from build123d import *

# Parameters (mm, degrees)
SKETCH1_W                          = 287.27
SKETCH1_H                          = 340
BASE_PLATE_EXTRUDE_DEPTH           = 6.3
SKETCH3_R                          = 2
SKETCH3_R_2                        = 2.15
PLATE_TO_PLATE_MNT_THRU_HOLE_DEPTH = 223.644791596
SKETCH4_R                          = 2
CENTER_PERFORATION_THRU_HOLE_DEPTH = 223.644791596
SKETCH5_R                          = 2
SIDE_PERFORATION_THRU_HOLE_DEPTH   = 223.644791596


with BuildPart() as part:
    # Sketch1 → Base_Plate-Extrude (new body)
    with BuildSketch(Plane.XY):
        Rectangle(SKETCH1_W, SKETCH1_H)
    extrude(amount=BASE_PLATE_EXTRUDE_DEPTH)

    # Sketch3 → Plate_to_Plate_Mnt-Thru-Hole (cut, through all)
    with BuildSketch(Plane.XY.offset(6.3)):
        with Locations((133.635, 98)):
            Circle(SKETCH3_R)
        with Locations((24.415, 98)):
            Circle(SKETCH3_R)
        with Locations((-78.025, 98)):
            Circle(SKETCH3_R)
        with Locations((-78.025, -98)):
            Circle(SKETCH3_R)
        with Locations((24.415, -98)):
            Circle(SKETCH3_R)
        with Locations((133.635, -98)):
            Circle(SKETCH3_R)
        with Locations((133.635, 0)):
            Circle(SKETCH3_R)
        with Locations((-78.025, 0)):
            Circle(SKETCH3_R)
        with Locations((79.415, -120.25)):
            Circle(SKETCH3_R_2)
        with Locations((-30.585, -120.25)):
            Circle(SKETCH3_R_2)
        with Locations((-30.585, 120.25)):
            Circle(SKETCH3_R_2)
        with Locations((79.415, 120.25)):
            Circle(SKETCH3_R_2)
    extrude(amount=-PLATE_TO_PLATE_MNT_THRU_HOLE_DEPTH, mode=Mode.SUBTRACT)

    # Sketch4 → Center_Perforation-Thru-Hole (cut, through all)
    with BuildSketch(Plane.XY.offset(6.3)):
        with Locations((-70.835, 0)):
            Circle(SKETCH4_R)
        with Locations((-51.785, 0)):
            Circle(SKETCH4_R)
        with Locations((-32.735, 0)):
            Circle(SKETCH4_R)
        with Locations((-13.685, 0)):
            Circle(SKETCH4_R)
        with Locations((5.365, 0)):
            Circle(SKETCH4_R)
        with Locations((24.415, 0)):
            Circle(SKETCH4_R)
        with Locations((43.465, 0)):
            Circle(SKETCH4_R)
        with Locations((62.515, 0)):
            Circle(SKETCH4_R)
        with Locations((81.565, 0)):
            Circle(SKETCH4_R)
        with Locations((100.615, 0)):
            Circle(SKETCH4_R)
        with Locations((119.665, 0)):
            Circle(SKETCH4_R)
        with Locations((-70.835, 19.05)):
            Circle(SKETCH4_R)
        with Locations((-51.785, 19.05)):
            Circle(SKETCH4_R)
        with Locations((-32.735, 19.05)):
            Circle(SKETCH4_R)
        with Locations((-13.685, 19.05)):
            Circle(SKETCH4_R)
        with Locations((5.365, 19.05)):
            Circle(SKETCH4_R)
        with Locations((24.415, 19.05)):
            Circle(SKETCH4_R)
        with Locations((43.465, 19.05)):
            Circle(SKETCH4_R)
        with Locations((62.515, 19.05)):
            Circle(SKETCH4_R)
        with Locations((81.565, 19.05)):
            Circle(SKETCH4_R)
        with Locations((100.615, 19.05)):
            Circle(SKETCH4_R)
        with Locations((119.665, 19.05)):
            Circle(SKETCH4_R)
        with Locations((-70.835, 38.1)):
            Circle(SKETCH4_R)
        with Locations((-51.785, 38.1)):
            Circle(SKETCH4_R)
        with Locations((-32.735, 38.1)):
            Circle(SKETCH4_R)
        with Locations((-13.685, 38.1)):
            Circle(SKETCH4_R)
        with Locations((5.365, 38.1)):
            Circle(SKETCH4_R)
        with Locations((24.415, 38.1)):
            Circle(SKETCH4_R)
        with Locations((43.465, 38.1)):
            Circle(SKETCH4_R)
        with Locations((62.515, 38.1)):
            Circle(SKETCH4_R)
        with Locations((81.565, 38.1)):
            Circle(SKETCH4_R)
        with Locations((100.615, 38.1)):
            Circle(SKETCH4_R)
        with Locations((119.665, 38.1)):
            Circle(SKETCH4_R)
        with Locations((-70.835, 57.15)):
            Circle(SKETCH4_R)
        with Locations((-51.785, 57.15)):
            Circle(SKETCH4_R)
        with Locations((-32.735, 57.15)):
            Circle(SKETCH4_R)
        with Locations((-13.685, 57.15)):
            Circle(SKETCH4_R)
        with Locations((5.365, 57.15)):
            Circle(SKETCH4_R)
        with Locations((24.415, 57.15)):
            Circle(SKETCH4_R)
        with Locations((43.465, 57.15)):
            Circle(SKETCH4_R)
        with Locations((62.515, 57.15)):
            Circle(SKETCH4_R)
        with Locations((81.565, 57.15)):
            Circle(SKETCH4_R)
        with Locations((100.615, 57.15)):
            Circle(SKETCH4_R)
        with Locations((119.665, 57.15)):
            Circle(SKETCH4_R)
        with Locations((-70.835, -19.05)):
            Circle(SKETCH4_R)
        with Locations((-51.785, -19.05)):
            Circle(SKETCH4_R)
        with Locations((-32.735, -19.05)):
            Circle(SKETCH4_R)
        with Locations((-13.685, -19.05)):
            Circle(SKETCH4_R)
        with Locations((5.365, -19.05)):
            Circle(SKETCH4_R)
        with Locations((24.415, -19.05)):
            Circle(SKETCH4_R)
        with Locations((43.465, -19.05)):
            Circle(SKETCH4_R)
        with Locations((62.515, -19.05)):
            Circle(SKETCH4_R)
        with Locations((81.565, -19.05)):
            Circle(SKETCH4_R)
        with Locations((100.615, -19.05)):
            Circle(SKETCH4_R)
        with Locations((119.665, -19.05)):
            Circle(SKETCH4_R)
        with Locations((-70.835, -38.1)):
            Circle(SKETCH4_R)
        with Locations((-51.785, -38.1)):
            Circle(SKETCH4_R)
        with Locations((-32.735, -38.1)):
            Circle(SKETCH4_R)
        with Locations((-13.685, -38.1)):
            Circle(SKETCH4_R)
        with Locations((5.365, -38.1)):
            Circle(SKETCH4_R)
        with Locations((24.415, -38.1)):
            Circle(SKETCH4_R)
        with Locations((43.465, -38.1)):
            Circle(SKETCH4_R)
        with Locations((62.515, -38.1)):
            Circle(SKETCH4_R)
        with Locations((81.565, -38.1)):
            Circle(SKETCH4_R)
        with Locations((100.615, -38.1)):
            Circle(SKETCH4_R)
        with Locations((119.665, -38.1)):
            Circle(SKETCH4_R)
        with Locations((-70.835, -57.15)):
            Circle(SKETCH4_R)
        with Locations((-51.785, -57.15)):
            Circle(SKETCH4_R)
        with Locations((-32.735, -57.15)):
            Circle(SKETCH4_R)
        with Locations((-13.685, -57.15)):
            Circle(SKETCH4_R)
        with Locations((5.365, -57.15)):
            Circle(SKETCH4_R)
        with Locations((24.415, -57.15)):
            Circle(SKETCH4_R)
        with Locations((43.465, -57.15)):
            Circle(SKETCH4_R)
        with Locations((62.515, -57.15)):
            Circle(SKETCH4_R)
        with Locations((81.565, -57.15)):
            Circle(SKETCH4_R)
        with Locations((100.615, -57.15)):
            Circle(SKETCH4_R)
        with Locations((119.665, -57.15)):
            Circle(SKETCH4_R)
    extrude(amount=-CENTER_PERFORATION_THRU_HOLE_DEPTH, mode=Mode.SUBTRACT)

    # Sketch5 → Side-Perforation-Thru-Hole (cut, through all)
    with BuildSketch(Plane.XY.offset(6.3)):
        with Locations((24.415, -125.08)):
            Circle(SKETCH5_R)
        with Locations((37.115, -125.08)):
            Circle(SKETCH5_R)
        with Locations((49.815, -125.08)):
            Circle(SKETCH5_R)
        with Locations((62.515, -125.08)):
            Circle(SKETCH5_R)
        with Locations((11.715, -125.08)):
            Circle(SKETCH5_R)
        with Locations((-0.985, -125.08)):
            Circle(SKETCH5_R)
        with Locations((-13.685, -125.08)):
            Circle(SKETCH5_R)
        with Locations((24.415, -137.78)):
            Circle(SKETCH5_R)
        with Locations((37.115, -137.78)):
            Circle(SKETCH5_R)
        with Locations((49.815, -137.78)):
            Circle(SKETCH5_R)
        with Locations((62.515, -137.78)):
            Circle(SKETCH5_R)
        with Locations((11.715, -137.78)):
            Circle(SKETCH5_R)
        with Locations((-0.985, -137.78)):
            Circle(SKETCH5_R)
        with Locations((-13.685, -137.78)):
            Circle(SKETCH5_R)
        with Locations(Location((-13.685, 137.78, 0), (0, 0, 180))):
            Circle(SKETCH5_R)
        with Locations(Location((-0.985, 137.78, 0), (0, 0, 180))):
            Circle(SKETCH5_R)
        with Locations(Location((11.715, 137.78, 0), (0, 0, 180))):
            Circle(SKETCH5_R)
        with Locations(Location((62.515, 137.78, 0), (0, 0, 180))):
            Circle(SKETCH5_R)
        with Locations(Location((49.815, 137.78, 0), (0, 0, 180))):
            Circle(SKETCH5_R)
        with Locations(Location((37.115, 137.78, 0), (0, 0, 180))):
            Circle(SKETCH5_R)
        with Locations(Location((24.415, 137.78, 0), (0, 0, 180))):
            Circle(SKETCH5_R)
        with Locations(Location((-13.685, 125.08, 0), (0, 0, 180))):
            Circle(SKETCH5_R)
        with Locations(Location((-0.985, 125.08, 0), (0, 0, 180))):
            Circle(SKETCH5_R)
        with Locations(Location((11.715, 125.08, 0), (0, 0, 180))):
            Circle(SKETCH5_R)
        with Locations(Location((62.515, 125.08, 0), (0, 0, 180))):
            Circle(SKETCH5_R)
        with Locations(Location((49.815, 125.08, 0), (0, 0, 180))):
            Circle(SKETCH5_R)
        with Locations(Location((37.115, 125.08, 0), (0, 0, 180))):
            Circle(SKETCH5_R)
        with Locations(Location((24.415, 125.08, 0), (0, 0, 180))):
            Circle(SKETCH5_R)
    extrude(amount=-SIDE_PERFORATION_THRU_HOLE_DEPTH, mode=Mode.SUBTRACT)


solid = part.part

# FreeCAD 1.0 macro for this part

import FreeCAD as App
import Part
import Sketcher
Q = App.Units.Quantity


def add_polygon(sketch, points):
    """Adds a closed chain of lines whose ends are joined by coincident constraints."""
    first, n = sketch.GeometryCount, len(points)
    for a, b in zip(points, points[1:] + points[:1]):
        sketch.addGeometry(Part.LineSegment(App.Vector(*a, 0), App.Vector(*b, 0)), False)
    for i in range(n):
        sketch.addConstraint(Sketcher.Constraint("Coincident", first + i, 2, first + (i + 1) % n, 1))

doc = App.newDocument("Part")
body = doc.addObject("PartDesign::Body", "Body")

# Sketch on XY plane
sketch1 = body.newObject("Sketcher::SketchObject", "Sketch")
sketch1.AttachmentSupport = (doc.getObject("XY_Plane"), [""])
sketch1.MapMode = "FlatFace"
add_polygon(sketch1, [(-144, 170), (-144, -170), (144, -170), (144, 170)])  # lines 0-3
sketch1.addConstraint(Sketcher.Constraint("Vertical", 0))
sketch1.addConstraint(Sketcher.Constraint("Horizontal", 1))
sketch1.addConstraint(Sketcher.Constraint("Vertical", 2))
sketch1.addConstraint(Sketcher.Constraint("Horizontal", 3))
sketch1.addConstraint(Sketcher.Constraint("Symmetric", 0, 2, 2, 2, -1, 1))
sketch1.addConstraint(Sketcher.Constraint("DistanceY", 0, 2, 0, 1, Q("340 mm")))
sketch1.addConstraint(Sketcher.Constraint("DistanceX", 1, 1, 1, 2, Q("287.27 mm")))
pad1 = body.newObject("PartDesign::Pad", "Pad")
pad1.Profile = sketch1
pad1.Length = 6.3

# Sketch on XY plane
sketch2 = body.newObject("Sketcher::SketchObject", "Sketch001")
sketch2.AttachmentSupport = (doc.getObject("XY_Plane"), [""])
sketch2.MapMode = "FlatFace"
sketch2.AttachmentOffset = App.Placement(App.Vector(0, 0, 6.3), App.Rotation())
sketch2.addGeometry(Part.Circle(App.Vector(133.6, 98, 0), App.Vector(0, 0, 1), 2), False)
sketch2.addGeometry(Part.Circle(App.Vector(24.4, 98, 0), App.Vector(0, 0, 1), 2), False)
sketch2.addGeometry(Part.Circle(App.Vector(-78, 98, 0), App.Vector(0, 0, 1), 2), False)
sketch2.addGeometry(Part.Circle(App.Vector(-78, -98, 0), App.Vector(0, 0, 1), 2), False)
sketch2.addGeometry(Part.Circle(App.Vector(24.4, -98, 0), App.Vector(0, 0, 1), 2), False)
sketch2.addGeometry(Part.Circle(App.Vector(133.6, -98, 0), App.Vector(0, 0, 1), 2), False)
sketch2.addGeometry(Part.Circle(App.Vector(133.6, 0, 0), App.Vector(0, 0, 1), 2), False)
sketch2.addGeometry(Part.Circle(App.Vector(-78, 0, 0), App.Vector(0, 0, 1), 2), False)
sketch2.addGeometry(Part.Circle(App.Vector(79.4, -120.2, 0), App.Vector(0, 0, 1), 2.1), False)
sketch2.addGeometry(Part.Circle(App.Vector(-30.6, -120.2, 0), App.Vector(0, 0, 1), 2.1), False)
sketch2.addGeometry(Part.Circle(App.Vector(-30.6, 120.2, 0), App.Vector(0, 0, 1), 2.1), False)
sketch2.addGeometry(Part.Circle(App.Vector(79.4, 120.2, 0), App.Vector(0, 0, 1), 2.1), False)
sketch2.addConstraint(Sketcher.Constraint("Equal", 0, 1))
sketch2.addConstraint(Sketcher.Constraint("Equal", 1, 2))
sketch2.addConstraint(Sketcher.Constraint("Equal", 2, 3))
sketch2.addConstraint(Sketcher.Constraint("Equal", 3, 4))
sketch2.addConstraint(Sketcher.Constraint("Equal", 4, 5))
sketch2.addConstraint(Sketcher.Constraint("Equal", 5, 6))
sketch2.addConstraint(Sketcher.Constraint("Equal", 6, 7))
sketch2.addConstraint(Sketcher.Constraint("Equal", 8, 9))
sketch2.addConstraint(Sketcher.Constraint("Equal", 9, 10))
sketch2.addConstraint(Sketcher.Constraint("Equal", 10, 11))
sketch2.addConstraint(Sketcher.Constraint("Symmetric", 2, 3, 3, 3, -1))
sketch2.addConstraint(Sketcher.Constraint("Symmetric", 1, 3, 4, 3, -1))
sketch2.addConstraint(Sketcher.Constraint("Symmetric", 0, 3, 5, 3, -1))
sketch2.addConstraint(Sketcher.Constraint("Symmetric", 9, 3, 10, 3, -1))
sketch2.addConstraint(Sketcher.Constraint("Symmetric", 8, 3, 11, 3, -1))
sketch2.addConstraint(Sketcher.Constraint("PointOnObject", 6, 3, -1))
sketch2.addConstraint(Sketcher.Constraint("PointOnObject", 7, 3, -1))
sketch2.addConstraint(Sketcher.Constraint("Horizontal", 0, 3, 1, 3))
sketch2.addConstraint(Sketcher.Constraint("Horizontal", 1, 3, 2, 3))
sketch2.addConstraint(Sketcher.Constraint("Horizontal", 8, 3, 9, 3))
sketch2.addConstraint(Sketcher.Constraint("Vertical", 5, 3, 6, 3))
sketch2.addConstraint(Sketcher.Constraint("Vertical", 3, 3, 7, 3))
sketch2.addConstraint(Sketcher.Constraint("Diameter", 0, Q("4 mm")))
sketch2.addConstraint(Sketcher.Constraint("Diameter", 8, Q("4.3 mm")))
sketch2.addConstraint(Sketcher.Constraint("DistanceY", -1, 1, 0, 3, Q("98 mm")))
sketch2.addConstraint(Sketcher.Constraint("DistanceX", 4, 3, 8, 3, Q("55 mm")))
sketch2.addConstraint(Sketcher.Constraint("DistanceX", 9, 3, 4, 3, Q("55 mm")))
sketch2.addConstraint(Sketcher.Constraint("DistanceY", 8, 3, -1, 1, Q("120.25 mm")))
sketch2.addConstraint(Sketcher.Constraint("DistanceX", 1, 3, 0, 3, Q("109.22 mm")))
sketch2.addConstraint(Sketcher.Constraint("DistanceX", 2, 3, 1, 3, Q("102.44 mm")))
sketch2.addConstraint(Sketcher.Constraint("DistanceX", -1, 1, 0, 3, Q("133.635 mm")))
pocket1 = body.newObject("PartDesign::Pocket", "Pocket")
pocket1.Profile = sketch2
pocket1.Type = "ThroughAll"

# Sketch on XY plane
sketch3 = body.newObject("Sketcher::SketchObject", "Sketch002")
sketch3.AttachmentSupport = (doc.getObject("XY_Plane"), [""])
sketch3.MapMode = "FlatFace"
sketch3.AttachmentOffset = App.Placement(App.Vector(0, 0, 6.3), App.Rotation())
sketch3.addGeometry(Part.Circle(App.Vector(-70.8, 0, 0), App.Vector(0, 0, 1), 2), False)
sketch3.addGeometry(Part.Circle(App.Vector(-51.8, 0, 0), App.Vector(0, 0, 1), 2), False)
sketch3.addGeometry(Part.Circle(App.Vector(-32.7, 0, 0), App.Vector(0, 0, 1), 2), False)
sketch3.addGeometry(Part.Circle(App.Vector(-13.7, 0, 0), App.Vector(0, 0, 1), 2), False)
sketch3.addGeometry(Part.Circle(App.Vector(5.4, 0, 0), App.Vector(0, 0, 1), 2), False)
sketch3.addGeometry(Part.Circle(App.Vector(24.4, 0, 0), App.Vector(0, 0, 1), 2), False)
sketch3.addGeometry(Part.Circle(App.Vector(43.5, 0, 0), App.Vector(0, 0, 1), 2), False)
sketch3.addGeometry(Part.Circle(App.Vector(62.5, 0, 0), App.Vector(0, 0, 1), 2), False)
sketch3.addGeometry(Part.Circle(App.Vector(81.6, 0, 0), App.Vector(0, 0, 1), 2), False)
sketch3.addGeometry(Part.Circle(App.Vector(100.6, 0, 0), App.Vector(0, 0, 1), 2), False)
sketch3.addGeometry(Part.Circle(App.Vector(119.7, 0, 0), App.Vector(0, 0, 1), 2), False)
sketch3.addGeometry(Part.Circle(App.Vector(-70.8, 19.1, 0), App.Vector(0, 0, 1), 2), False)
sketch3.addGeometry(Part.Circle(App.Vector(-51.8, 19.1, 0), App.Vector(0, 0, 1), 2), False)
sketch3.addGeometry(Part.Circle(App.Vector(-32.7, 19.1, 0), App.Vector(0, 0, 1), 2), False)
sketch3.addGeometry(Part.Circle(App.Vector(-13.7, 19.1, 0), App.Vector(0, 0, 1), 2), False)
sketch3.addGeometry(Part.Circle(App.Vector(5.4, 19.1, 0), App.Vector(0, 0, 1), 2), False)
sketch3.addGeometry(Part.Circle(App.Vector(24.4, 19.1, 0), App.Vector(0, 0, 1), 2), False)
sketch3.addGeometry(Part.Circle(App.Vector(43.5, 19.1, 0), App.Vector(0, 0, 1), 2), False)
sketch3.addGeometry(Part.Circle(App.Vector(62.5, 19.1, 0), App.Vector(0, 0, 1), 2), False)
sketch3.addGeometry(Part.Circle(App.Vector(81.6, 19.1, 0), App.Vector(0, 0, 1), 2), False)
sketch3.addGeometry(Part.Circle(App.Vector(100.6, 19.1, 0), App.Vector(0, 0, 1), 2), False)
sketch3.addGeometry(Part.Circle(App.Vector(119.7, 19.1, 0), App.Vector(0, 0, 1), 2), False)
sketch3.addGeometry(Part.Circle(App.Vector(-70.8, 38.1, 0), App.Vector(0, 0, 1), 2), False)
sketch3.addGeometry(Part.Circle(App.Vector(-51.8, 38.1, 0), App.Vector(0, 0, 1), 2), False)
sketch3.addGeometry(Part.Circle(App.Vector(-32.7, 38.1, 0), App.Vector(0, 0, 1), 2), False)
sketch3.addGeometry(Part.Circle(App.Vector(-13.7, 38.1, 0), App.Vector(0, 0, 1), 2), False)
sketch3.addGeometry(Part.Circle(App.Vector(5.4, 38.1, 0), App.Vector(0, 0, 1), 2), False)
sketch3.addGeometry(Part.Circle(App.Vector(24.4, 38.1, 0), App.Vector(0, 0, 1), 2), False)
sketch3.addGeometry(Part.Circle(App.Vector(43.5, 38.1, 0), App.Vector(0, 0, 1), 2), False)
sketch3.addGeometry(Part.Circle(App.Vector(62.5, 38.1, 0), App.Vector(0, 0, 1), 2), False)
sketch3.addGeometry(Part.Circle(App.Vector(81.6, 38.1, 0), App.Vector(0, 0, 1), 2), False)
sketch3.addGeometry(Part.Circle(App.Vector(100.6, 38.1, 0), App.Vector(0, 0, 1), 2), False)
sketch3.addGeometry(Part.Circle(App.Vector(119.7, 38.1, 0), App.Vector(0, 0, 1), 2), False)
sketch3.addGeometry(Part.Circle(App.Vector(-70.8, 57.1, 0), App.Vector(0, 0, 1), 2), False)
sketch3.addGeometry(Part.Circle(App.Vector(-51.8, 57.1, 0), App.Vector(0, 0, 1), 2), False)
sketch3.addGeometry(Part.Circle(App.Vector(-32.7, 57.1, 0), App.Vector(0, 0, 1), 2), False)
sketch3.addGeometry(Part.Circle(App.Vector(-13.7, 57.1, 0), App.Vector(0, 0, 1), 2), False)
sketch3.addGeometry(Part.Circle(App.Vector(5.4, 57.1, 0), App.Vector(0, 0, 1), 2), False)
sketch3.addGeometry(Part.Circle(App.Vector(24.4, 57.1, 0), App.Vector(0, 0, 1), 2), False)
sketch3.addGeometry(Part.Circle(App.Vector(43.5, 57.1, 0), App.Vector(0, 0, 1), 2), False)
sketch3.addGeometry(Part.Circle(App.Vector(62.5, 57.1, 0), App.Vector(0, 0, 1), 2), False)
sketch3.addGeometry(Part.Circle(App.Vector(81.6, 57.1, 0), App.Vector(0, 0, 1), 2), False)
sketch3.addGeometry(Part.Circle(App.Vector(100.6, 57.1, 0), App.Vector(0, 0, 1), 2), False)
sketch3.addGeometry(Part.Circle(App.Vector(119.7, 57.1, 0), App.Vector(0, 0, 1), 2), False)
sketch3.addGeometry(Part.Circle(App.Vector(-70.8, -19.1, 0), App.Vector(0, 0, 1), 2), False)
sketch3.addGeometry(Part.Circle(App.Vector(-51.8, -19.1, 0), App.Vector(0, 0, 1), 2), False)
sketch3.addGeometry(Part.Circle(App.Vector(-32.7, -19.1, 0), App.Vector(0, 0, 1), 2), False)
sketch3.addGeometry(Part.Circle(App.Vector(-13.7, -19.1, 0), App.Vector(0, 0, 1), 2), False)
sketch3.addGeometry(Part.Circle(App.Vector(5.4, -19.1, 0), App.Vector(0, 0, 1), 2), False)
sketch3.addGeometry(Part.Circle(App.Vector(24.4, -19.1, 0), App.Vector(0, 0, 1), 2), False)
sketch3.addGeometry(Part.Circle(App.Vector(43.5, -19.1, 0), App.Vector(0, 0, 1), 2), False)
sketch3.addGeometry(Part.Circle(App.Vector(62.5, -19.1, 0), App.Vector(0, 0, 1), 2), False)
sketch3.addGeometry(Part.Circle(App.Vector(81.6, -19.1, 0), App.Vector(0, 0, 1), 2), False)
sketch3.addGeometry(Part.Circle(App.Vector(100.6, -19.1, 0), App.Vector(0, 0, 1), 2), False)
sketch3.addGeometry(Part.Circle(App.Vector(119.7, -19.1, 0), App.Vector(0, 0, 1), 2), False)
sketch3.addGeometry(Part.Circle(App.Vector(-70.8, -38.1, 0), App.Vector(0, 0, 1), 2), False)
sketch3.addGeometry(Part.Circle(App.Vector(-51.8, -38.1, 0), App.Vector(0, 0, 1), 2), False)
sketch3.addGeometry(Part.Circle(App.Vector(-32.7, -38.1, 0), App.Vector(0, 0, 1), 2), False)
sketch3.addGeometry(Part.Circle(App.Vector(-13.7, -38.1, 0), App.Vector(0, 0, 1), 2), False)
sketch3.addGeometry(Part.Circle(App.Vector(5.4, -38.1, 0), App.Vector(0, 0, 1), 2), False)
sketch3.addGeometry(Part.Circle(App.Vector(24.4, -38.1, 0), App.Vector(0, 0, 1), 2), False)
sketch3.addGeometry(Part.Circle(App.Vector(43.5, -38.1, 0), App.Vector(0, 0, 1), 2), False)
sketch3.addGeometry(Part.Circle(App.Vector(62.5, -38.1, 0), App.Vector(0, 0, 1), 2), False)
sketch3.addGeometry(Part.Circle(App.Vector(81.6, -38.1, 0), App.Vector(0, 0, 1), 2), False)
sketch3.addGeometry(Part.Circle(App.Vector(100.6, -38.1, 0), App.Vector(0, 0, 1), 2), False)
sketch3.addGeometry(Part.Circle(App.Vector(119.7, -38.1, 0), App.Vector(0, 0, 1), 2), False)
sketch3.addGeometry(Part.Circle(App.Vector(-70.8, -57.1, 0), App.Vector(0, 0, 1), 2), False)
sketch3.addGeometry(Part.Circle(App.Vector(-51.8, -57.1, 0), App.Vector(0, 0, 1), 2), False)
sketch3.addGeometry(Part.Circle(App.Vector(-32.7, -57.1, 0), App.Vector(0, 0, 1), 2), False)
sketch3.addGeometry(Part.Circle(App.Vector(-13.7, -57.1, 0), App.Vector(0, 0, 1), 2), False)
sketch3.addGeometry(Part.Circle(App.Vector(5.4, -57.1, 0), App.Vector(0, 0, 1), 2), False)
sketch3.addGeometry(Part.Circle(App.Vector(24.4, -57.1, 0), App.Vector(0, 0, 1), 2), False)
sketch3.addGeometry(Part.Circle(App.Vector(43.5, -57.1, 0), App.Vector(0, 0, 1), 2), False)
sketch3.addGeometry(Part.Circle(App.Vector(62.5, -57.1, 0), App.Vector(0, 0, 1), 2), False)
sketch3.addGeometry(Part.Circle(App.Vector(81.6, -57.1, 0), App.Vector(0, 0, 1), 2), False)
sketch3.addGeometry(Part.Circle(App.Vector(100.6, -57.1, 0), App.Vector(0, 0, 1), 2), False)
sketch3.addGeometry(Part.Circle(App.Vector(119.7, -57.1, 0), App.Vector(0, 0, 1), 2), False)
sketch3.addConstraint(Sketcher.Constraint("Equal", 0, 1))
sketch3.addConstraint(Sketcher.Constraint("Equal", 1, 2))
sketch3.addConstraint(Sketcher.Constraint("Equal", 2, 3))
sketch3.addConstraint(Sketcher.Constraint("Equal", 3, 4))
sketch3.addConstraint(Sketcher.Constraint("Equal", 4, 5))
sketch3.addConstraint(Sketcher.Constraint("Equal", 5, 6))
sketch3.addConstraint(Sketcher.Constraint("Equal", 6, 7))
sketch3.addConstraint(Sketcher.Constraint("Equal", 7, 8))
sketch3.addConstraint(Sketcher.Constraint("Equal", 8, 9))
sketch3.addConstraint(Sketcher.Constraint("Equal", 9, 10))
sketch3.addConstraint(Sketcher.Constraint("Equal", 10, 11))
sketch3.addConstraint(Sketcher.Constraint("Equal", 11, 12))
sketch3.addConstraint(Sketcher.Constraint("Equal", 12, 13))
sketch3.addConstraint(Sketcher.Constraint("Equal", 13, 14))
sketch3.addConstraint(Sketcher.Constraint("Equal", 14, 15))
sketch3.addConstraint(Sketcher.Constraint("Equal", 15, 16))
sketch3.addConstraint(Sketcher.Constraint("Equal", 16, 17))
sketch3.addConstraint(Sketcher.Constraint("Equal", 17, 18))
sketch3.addConstraint(Sketcher.Constraint("Equal", 18, 19))
sketch3.addConstraint(Sketcher.Constraint("Equal", 19, 20))
sketch3.addConstraint(Sketcher.Constraint("Equal", 20, 21))
sketch3.addConstraint(Sketcher.Constraint("Equal", 21, 22))
sketch3.addConstraint(Sketcher.Constraint("Equal", 22, 23))
sketch3.addConstraint(Sketcher.Constraint("Equal", 23, 24))
sketch3.addConstraint(Sketcher.Constraint("Equal", 24, 25))
sketch3.addConstraint(Sketcher.Constraint("Equal", 25, 26))
sketch3.addConstraint(Sketcher.Constraint("Equal", 26, 27))
sketch3.addConstraint(Sketcher.Constraint("Equal", 27, 28))
sketch3.addConstraint(Sketcher.Constraint("Equal", 28, 29))
sketch3.addConstraint(Sketcher.Constraint("Equal", 29, 30))
sketch3.addConstraint(Sketcher.Constraint("Equal", 30, 31))
sketch3.addConstraint(Sketcher.Constraint("Equal", 31, 32))
sketch3.addConstraint(Sketcher.Constraint("Equal", 32, 33))
sketch3.addConstraint(Sketcher.Constraint("Equal", 33, 34))
sketch3.addConstraint(Sketcher.Constraint("Equal", 34, 35))
sketch3.addConstraint(Sketcher.Constraint("Equal", 35, 36))
sketch3.addConstraint(Sketcher.Constraint("Equal", 36, 37))
sketch3.addConstraint(Sketcher.Constraint("Equal", 37, 38))
sketch3.addConstraint(Sketcher.Constraint("Equal", 38, 39))
sketch3.addConstraint(Sketcher.Constraint("Equal", 39, 40))
sketch3.addConstraint(Sketcher.Constraint("Equal", 40, 41))
sketch3.addConstraint(Sketcher.Constraint("Equal", 41, 42))
sketch3.addConstraint(Sketcher.Constraint("Equal", 42, 43))
sketch3.addConstraint(Sketcher.Constraint("Equal", 43, 44))
sketch3.addConstraint(Sketcher.Constraint("Equal", 44, 45))
sketch3.addConstraint(Sketcher.Constraint("Equal", 45, 46))
sketch3.addConstraint(Sketcher.Constraint("Equal", 46, 47))
sketch3.addConstraint(Sketcher.Constraint("Equal", 47, 48))
sketch3.addConstraint(Sketcher.Constraint("Equal", 48, 49))
sketch3.addConstraint(Sketcher.Constraint("Equal", 49, 50))
sketch3.addConstraint(Sketcher.Constraint("Equal", 50, 51))
sketch3.addConstraint(Sketcher.Constraint("Equal", 51, 52))
sketch3.addConstraint(Sketcher.Constraint("Equal", 52, 53))
sketch3.addConstraint(Sketcher.Constraint("Equal", 53, 54))
sketch3.addConstraint(Sketcher.Constraint("Equal", 54, 55))
sketch3.addConstraint(Sketcher.Constraint("Equal", 55, 56))
sketch3.addConstraint(Sketcher.Constraint("Equal", 56, 57))
sketch3.addConstraint(Sketcher.Constraint("Equal", 57, 58))
sketch3.addConstraint(Sketcher.Constraint("Equal", 58, 59))
sketch3.addConstraint(Sketcher.Constraint("Equal", 59, 60))
sketch3.addConstraint(Sketcher.Constraint("Equal", 60, 61))
sketch3.addConstraint(Sketcher.Constraint("Equal", 61, 62))
sketch3.addConstraint(Sketcher.Constraint("Equal", 62, 63))
sketch3.addConstraint(Sketcher.Constraint("Equal", 63, 64))
sketch3.addConstraint(Sketcher.Constraint("Equal", 64, 65))
sketch3.addConstraint(Sketcher.Constraint("Equal", 65, 66))
sketch3.addConstraint(Sketcher.Constraint("Equal", 66, 67))
sketch3.addConstraint(Sketcher.Constraint("Equal", 67, 68))
sketch3.addConstraint(Sketcher.Constraint("Equal", 68, 69))
sketch3.addConstraint(Sketcher.Constraint("Equal", 69, 70))
sketch3.addConstraint(Sketcher.Constraint("Equal", 70, 71))
sketch3.addConstraint(Sketcher.Constraint("Equal", 71, 72))
sketch3.addConstraint(Sketcher.Constraint("Equal", 72, 73))
sketch3.addConstraint(Sketcher.Constraint("Equal", 73, 74))
sketch3.addConstraint(Sketcher.Constraint("Equal", 74, 75))
sketch3.addConstraint(Sketcher.Constraint("Equal", 75, 76))
sketch3.addConstraint(Sketcher.Constraint("Symmetric", 11, 3, 44, 3, -1))
sketch3.addConstraint(Sketcher.Constraint("Symmetric", 12, 3, 45, 3, -1))
sketch3.addConstraint(Sketcher.Constraint("Symmetric", 13, 3, 46, 3, -1))
sketch3.addConstraint(Sketcher.Constraint("Symmetric", 14, 3, 47, 3, -1))
sketch3.addConstraint(Sketcher.Constraint("Symmetric", 15, 3, 48, 3, -1))
sketch3.addConstraint(Sketcher.Constraint("Symmetric", 16, 3, 49, 3, -1))
sketch3.addConstraint(Sketcher.Constraint("Symmetric", 17, 3, 50, 3, -1))
sketch3.addConstraint(Sketcher.Constraint("Symmetric", 18, 3, 51, 3, -1))
sketch3.addConstraint(Sketcher.Constraint("Symmetric", 19, 3, 52, 3, -1))
sketch3.addConstraint(Sketcher.Constraint("Symmetric", 20, 3, 53, 3, -1))
sketch3.addConstraint(Sketcher.Constraint("Symmetric", 21, 3, 54, 3, -1))
sketch3.addConstraint(Sketcher.Constraint("Symmetric", 22, 3, 55, 3, -1))
sketch3.addConstraint(Sketcher.Constraint("Symmetric", 23, 3, 56, 3, -1))
sketch3.addConstraint(Sketcher.Constraint("Symmetric", 24, 3, 57, 3, -1))
sketch3.addConstraint(Sketcher.Constraint("Symmetric", 25, 3, 58, 3, -1))
sketch3.addConstraint(Sketcher.Constraint("Symmetric", 26, 3, 59, 3, -1))
sketch3.addConstraint(Sketcher.Constraint("Symmetric", 27, 3, 60, 3, -1))
sketch3.addConstraint(Sketcher.Constraint("Symmetric", 28, 3, 61, 3, -1))
sketch3.addConstraint(Sketcher.Constraint("Symmetric", 29, 3, 62, 3, -1))
sketch3.addConstraint(Sketcher.Constraint("Symmetric", 30, 3, 63, 3, -1))
sketch3.addConstraint(Sketcher.Constraint("Symmetric", 31, 3, 64, 3, -1))
sketch3.addConstraint(Sketcher.Constraint("Symmetric", 32, 3, 65, 3, -1))
sketch3.addConstraint(Sketcher.Constraint("Symmetric", 33, 3, 66, 3, -1))
sketch3.addConstraint(Sketcher.Constraint("Symmetric", 34, 3, 67, 3, -1))
sketch3.addConstraint(Sketcher.Constraint("Symmetric", 35, 3, 68, 3, -1))
sketch3.addConstraint(Sketcher.Constraint("Symmetric", 36, 3, 69, 3, -1))
sketch3.addConstraint(Sketcher.Constraint("Symmetric", 37, 3, 70, 3, -1))
sketch3.addConstraint(Sketcher.Constraint("Symmetric", 38, 3, 71, 3, -1))
sketch3.addConstraint(Sketcher.Constraint("Symmetric", 39, 3, 72, 3, -1))
sketch3.addConstraint(Sketcher.Constraint("Symmetric", 40, 3, 73, 3, -1))
sketch3.addConstraint(Sketcher.Constraint("Symmetric", 41, 3, 74, 3, -1))
sketch3.addConstraint(Sketcher.Constraint("Symmetric", 42, 3, 75, 3, -1))
sketch3.addConstraint(Sketcher.Constraint("Symmetric", 43, 3, 76, 3, -1))
sketch3.addConstraint(Sketcher.Constraint("PointOnObject", 0, 3, -1))
sketch3.addConstraint(Sketcher.Constraint("PointOnObject", 1, 3, -1))
sketch3.addConstraint(Sketcher.Constraint("PointOnObject", 2, 3, -1))
sketch3.addConstraint(Sketcher.Constraint("PointOnObject", 3, 3, -1))
sketch3.addConstraint(Sketcher.Constraint("PointOnObject", 4, 3, -1))
sketch3.addConstraint(Sketcher.Constraint("PointOnObject", 5, 3, -1))
sketch3.addConstraint(Sketcher.Constraint("PointOnObject", 6, 3, -1))
sketch3.addConstraint(Sketcher.Constraint("PointOnObject", 7, 3, -1))
sketch3.addConstraint(Sketcher.Constraint("PointOnObject", 8, 3, -1))
sketch3.addConstraint(Sketcher.Constraint("PointOnObject", 9, 3, -1))
sketch3.addConstraint(Sketcher.Constraint("PointOnObject", 10, 3, -1))
sketch3.addConstraint(Sketcher.Constraint("Horizontal", 11, 3, 12, 3))
sketch3.addConstraint(Sketcher.Constraint("Horizontal", 12, 3, 13, 3))
sketch3.addConstraint(Sketcher.Constraint("Horizontal", 13, 3, 14, 3))
sketch3.addConstraint(Sketcher.Constraint("Horizontal", 14, 3, 15, 3))
sketch3.addConstraint(Sketcher.Constraint("Horizontal", 15, 3, 16, 3))
sketch3.addConstraint(Sketcher.Constraint("Horizontal", 16, 3, 17, 3))
sketch3.addConstraint(Sketcher.Constraint("Horizontal", 17, 3, 18, 3))
sketch3.addConstraint(Sketcher.Constraint("Horizontal", 18, 3, 19, 3))
sketch3.addConstraint(Sketcher.Constraint("Horizontal", 19, 3, 20, 3))
sketch3.addConstraint(Sketcher.Constraint("Horizontal", 20, 3, 21, 3))
sketch3.addConstraint(Sketcher.Constraint("Horizontal", 22, 3, 23, 3))
sketch3.addConstraint(Sketcher.Constraint("Horizontal", 23, 3, 24, 3))
sketch3.addConstraint(Sketcher.Constraint("Horizontal", 24, 3, 25, 3))
sketch3.addConstraint(Sketcher.Constraint("Horizontal", 25, 3, 26, 3))
sketch3.addConstraint(Sketcher.Constraint("Horizontal", 26, 3, 27, 3))
sketch3.addConstraint(Sketcher.Constraint("Horizontal", 27, 3, 28, 3))
sketch3.addConstraint(Sketcher.Constraint("Horizontal", 28, 3, 29, 3))
sketch3.addConstraint(Sketcher.Constraint("Horizontal", 29, 3, 30, 3))
sketch3.addConstraint(Sketcher.Constraint("Horizontal", 30, 3, 31, 3))
sketch3.addConstraint(Sketcher.Constraint("Horizontal", 31, 3, 32, 3))
sketch3.addConstraint(Sketcher.Constraint("Horizontal", 33, 3, 34, 3))
sketch3.addConstraint(Sketcher.Constraint("Horizontal", 34, 3, 35, 3))
sketch3.addConstraint(Sketcher.Constraint("Horizontal", 35, 3, 36, 3))
sketch3.addConstraint(Sketcher.Constraint("Horizontal", 36, 3, 37, 3))
sketch3.addConstraint(Sketcher.Constraint("Horizontal", 37, 3, 38, 3))
sketch3.addConstraint(Sketcher.Constraint("Horizontal", 38, 3, 39, 3))
sketch3.addConstraint(Sketcher.Constraint("Horizontal", 39, 3, 40, 3))
sketch3.addConstraint(Sketcher.Constraint("Horizontal", 40, 3, 41, 3))
sketch3.addConstraint(Sketcher.Constraint("Horizontal", 41, 3, 42, 3))
sketch3.addConstraint(Sketcher.Constraint("Horizontal", 42, 3, 43, 3))
sketch3.addConstraint(Sketcher.Constraint("Vertical", 0, 3, 11, 3))
sketch3.addConstraint(Sketcher.Constraint("Vertical", 1, 3, 12, 3))
sketch3.addConstraint(Sketcher.Constraint("Vertical", 2, 3, 13, 3))
sketch3.addConstraint(Sketcher.Constraint("Vertical", 3, 3, 14, 3))
sketch3.addConstraint(Sketcher.Constraint("Vertical", 4, 3, 15, 3))
sketch3.addConstraint(Sketcher.Constraint("Vertical", 5, 3, 16, 3))
sketch3.addConstraint(Sketcher.Constraint("Vertical", 6, 3, 17, 3))
sketch3.addConstraint(Sketcher.Constraint("Vertical", 7, 3, 18, 3))
sketch3.addConstraint(Sketcher.Constraint("Vertical", 8, 3, 19, 3))
sketch3.addConstraint(Sketcher.Constraint("Vertical", 9, 3, 20, 3))
sketch3.addConstraint(Sketcher.Constraint("Vertical", 10, 3, 21, 3))
sketch3.addConstraint(Sketcher.Constraint("Vertical", 11, 3, 22, 3))
sketch3.addConstraint(Sketcher.Constraint("Vertical", 12, 3, 23, 3))
sketch3.addConstraint(Sketcher.Constraint("Vertical", 13, 3, 24, 3))
sketch3.addConstraint(Sketcher.Constraint("Vertical", 14, 3, 25, 3))
sketch3.addConstraint(Sketcher.Constraint("Vertical", 15, 3, 26, 3))
sketch3.addConstraint(Sketcher.Constraint("Vertical", 16, 3, 27, 3))
sketch3.addConstraint(Sketcher.Constraint("Vertical", 17, 3, 28, 3))
sketch3.addConstraint(Sketcher.Constraint("Vertical", 18, 3, 29, 3))
sketch3.addConstraint(Sketcher.Constraint("Vertical", 19, 3, 30, 3))
sketch3.addConstraint(Sketcher.Constraint("Vertical", 20, 3, 31, 3))
sketch3.addConstraint(Sketcher.Constraint("Vertical", 21, 3, 32, 3))
sketch3.addConstraint(Sketcher.Constraint("Vertical", 22, 3, 33, 3))
sketch3.addConstraint(Sketcher.Constraint("Vertical", 23, 3, 34, 3))
sketch3.addConstraint(Sketcher.Constraint("Vertical", 24, 3, 35, 3))
sketch3.addConstraint(Sketcher.Constraint("Vertical", 25, 3, 36, 3))
sketch3.addConstraint(Sketcher.Constraint("Vertical", 26, 3, 37, 3))
sketch3.addConstraint(Sketcher.Constraint("Vertical", 27, 3, 38, 3))
sketch3.addConstraint(Sketcher.Constraint("Vertical", 28, 3, 39, 3))
sketch3.addConstraint(Sketcher.Constraint("Vertical", 29, 3, 40, 3))
sketch3.addConstraint(Sketcher.Constraint("Vertical", 30, 3, 41, 3))
sketch3.addConstraint(Sketcher.Constraint("Vertical", 31, 3, 42, 3))
sketch3.addConstraint(Sketcher.Constraint("Vertical", 32, 3, 43, 3))
sketch3.addConstraint(Sketcher.Constraint("Diameter", 0, Q("4 mm")))
sketch3.addConstraint(Sketcher.Constraint("DistanceY", -1, 1, 22, 3, Q("38.1 mm")))
sketch3.addConstraint(Sketcher.Constraint("DistanceY", -1, 1, 11, 3, Q("19.05 mm")))
sketch3.addConstraint(Sketcher.Constraint("DistanceY", -1, 1, 33, 3, Q("57.15 mm")))
sketch3.addConstraint(Sketcher.Constraint("DistanceX", 0, 3, -1, 1, Q("70.835 mm")))
sketch3.addConstraint(Sketcher.Constraint("DistanceX", 1, 3, -1, 1, Q("51.785 mm")))
sketch3.addConstraint(Sketcher.Constraint("DistanceX", 2, 3, -1, 1, Q("32.735 mm")))
sketch3.addConstraint(Sketcher.Constraint("DistanceX", 3, 3, -1, 1, Q("13.685 mm")))
sketch3.addConstraint(Sketcher.Constraint("DistanceX", -1, 1, 4, 3, Q("5.365 mm")))
sketch3.addConstraint(Sketcher.Constraint("DistanceX", -1, 1, 5, 3, Q("24.415 mm")))
sketch3.addConstraint(Sketcher.Constraint("DistanceX", -1, 1, 6, 3, Q("43.465 mm")))
sketch3.addConstraint(Sketcher.Constraint("DistanceX", -1, 1, 7, 3, Q("62.515 mm")))
sketch3.addConstraint(Sketcher.Constraint("DistanceX", -1, 1, 8, 3, Q("81.565 mm")))
sketch3.addConstraint(Sketcher.Constraint("DistanceX", -1, 1, 9, 3, Q("100.615 mm")))
sketch3.addConstraint(Sketcher.Constraint("DistanceX", -1, 1, 10, 3, Q("119.665 mm")))
pocket2 = body.newObject("PartDesign::Pocket", "Pocket001")
pocket2.Profile = sketch3
pocket2.Type = "ThroughAll"

# Sketch on XY plane
sketch4 = body.newObject("Sketcher::SketchObject", "Sketch003")
sketch4.AttachmentSupport = (doc.getObject("XY_Plane"), [""])
sketch4.MapMode = "FlatFace"
sketch4.AttachmentOffset = App.Placement(App.Vector(0, 0, 6.3), App.Rotation())
sketch4.addGeometry(Part.Circle(App.Vector(24.4, -125.1, 0), App.Vector(0, 0, 1), 2), False)
sketch4.addGeometry(Part.Circle(App.Vector(37.1, -125.1, 0), App.Vector(0, 0, 1), 2), False)
sketch4.addGeometry(Part.Circle(App.Vector(49.8, -125.1, 0), App.Vector(0, 0, 1), 2), False)
sketch4.addGeometry(Part.Circle(App.Vector(62.5, -125.1, 0), App.Vector(0, 0, 1), 2), False)
sketch4.addGeometry(Part.Circle(App.Vector(11.7, -125.1, 0), App.Vector(0, 0, 1), 2), False)
sketch4.addGeometry(Part.Circle(App.Vector(-1, -125.1, 0), App.Vector(0, 0, 1), 2), False)
sketch4.addGeometry(Part.Circle(App.Vector(-13.7, -125.1, 0), App.Vector(0, 0, 1), 2), False)
sketch4.addGeometry(Part.Circle(App.Vector(24.4, -137.8, 0), App.Vector(0, 0, 1), 2), False)
sketch4.addGeometry(Part.Circle(App.Vector(37.1, -137.8, 0), App.Vector(0, 0, 1), 2), False)
sketch4.addGeometry(Part.Circle(App.Vector(49.8, -137.8, 0), App.Vector(0, 0, 1), 2), False)
sketch4.addGeometry(Part.Circle(App.Vector(62.5, -137.8, 0), App.Vector(0, 0, 1), 2), False)
sketch4.addGeometry(Part.Circle(App.Vector(11.7, -137.8, 0), App.Vector(0, 0, 1), 2), False)
sketch4.addGeometry(Part.Circle(App.Vector(-1, -137.8, 0), App.Vector(0, 0, 1), 2), False)
sketch4.addGeometry(Part.Circle(App.Vector(-13.7, -137.8, 0), App.Vector(0, 0, 1), 2), False)
sketch4.addGeometry(Part.Circle(App.Vector(-13.7, 137.8, 0), App.Vector(0, 0, 1), 2), False)
sketch4.addGeometry(Part.Circle(App.Vector(-1, 137.8, 0), App.Vector(0, 0, 1), 2), False)
sketch4.addGeometry(Part.Circle(App.Vector(11.7, 137.8, 0), App.Vector(0, 0, 1), 2), False)
sketch4.addGeometry(Part.Circle(App.Vector(62.5, 137.8, 0), App.Vector(0, 0, 1), 2), False)
sketch4.addGeometry(Part.Circle(App.Vector(49.8, 137.8, 0), App.Vector(0, 0, 1), 2), False)
sketch4.addGeometry(Part.Circle(App.Vector(37.1, 137.8, 0), App.Vector(0, 0, 1), 2), False)
sketch4.addGeometry(Part.Circle(App.Vector(24.4, 137.8, 0), App.Vector(0, 0, 1), 2), False)
sketch4.addGeometry(Part.Circle(App.Vector(-13.7, 125.1, 0), App.Vector(0, 0, 1), 2), False)
sketch4.addGeometry(Part.Circle(App.Vector(-1, 125.1, 0), App.Vector(0, 0, 1), 2), False)
sketch4.addGeometry(Part.Circle(App.Vector(11.7, 125.1, 0), App.Vector(0, 0, 1), 2), False)
sketch4.addGeometry(Part.Circle(App.Vector(62.5, 125.1, 0), App.Vector(0, 0, 1), 2), False)
sketch4.addGeometry(Part.Circle(App.Vector(49.8, 125.1, 0), App.Vector(0, 0, 1), 2), False)
sketch4.addGeometry(Part.Circle(App.Vector(37.1, 125.1, 0), App.Vector(0, 0, 1), 2), False)
sketch4.addGeometry(Part.Circle(App.Vector(24.4, 125.1, 0), App.Vector(0, 0, 1), 2), False)
sketch4.addConstraint(Sketcher.Constraint("Equal", 0, 1))
sketch4.addConstraint(Sketcher.Constraint("Equal", 1, 2))
sketch4.addConstraint(Sketcher.Constraint("Equal", 2, 3))
sketch4.addConstraint(Sketcher.Constraint("Equal", 3, 4))
sketch4.addConstraint(Sketcher.Constraint("Equal", 4, 5))
sketch4.addConstraint(Sketcher.Constraint("Equal", 5, 6))
sketch4.addConstraint(Sketcher.Constraint("Equal", 6, 7))
sketch4.addConstraint(Sketcher.Constraint("Equal", 7, 8))
sketch4.addConstraint(Sketcher.Constraint("Equal", 8, 9))
sketch4.addConstraint(Sketcher.Constraint("Equal", 9, 10))
sketch4.addConstraint(Sketcher.Constraint("Equal", 10, 11))
sketch4.addConstraint(Sketcher.Constraint("Equal", 11, 12))
sketch4.addConstraint(Sketcher.Constraint("Equal", 12, 13))
sketch4.addConstraint(Sketcher.Constraint("Equal", 13, 14))
sketch4.addConstraint(Sketcher.Constraint("Equal", 14, 15))
sketch4.addConstraint(Sketcher.Constraint("Equal", 15, 16))
sketch4.addConstraint(Sketcher.Constraint("Equal", 16, 17))
sketch4.addConstraint(Sketcher.Constraint("Equal", 17, 18))
sketch4.addConstraint(Sketcher.Constraint("Equal", 18, 19))
sketch4.addConstraint(Sketcher.Constraint("Equal", 19, 20))
sketch4.addConstraint(Sketcher.Constraint("Equal", 20, 21))
sketch4.addConstraint(Sketcher.Constraint("Equal", 21, 22))
sketch4.addConstraint(Sketcher.Constraint("Equal", 22, 23))
sketch4.addConstraint(Sketcher.Constraint("Equal", 23, 24))
sketch4.addConstraint(Sketcher.Constraint("Equal", 24, 25))
sketch4.addConstraint(Sketcher.Constraint("Equal", 25, 26))
sketch4.addConstraint(Sketcher.Constraint("Equal", 26, 27))
sketch4.addConstraint(Sketcher.Constraint("Symmetric", 13, 3, 14, 3, -1))
sketch4.addConstraint(Sketcher.Constraint("Symmetric", 12, 3, 15, 3, -1))
sketch4.addConstraint(Sketcher.Constraint("Symmetric", 11, 3, 16, 3, -1))
sketch4.addConstraint(Sketcher.Constraint("Symmetric", 10, 3, 17, 3, -1))
sketch4.addConstraint(Sketcher.Constraint("Symmetric", 9, 3, 18, 3, -1))
sketch4.addConstraint(Sketcher.Constraint("Symmetric", 8, 3, 19, 3, -1))
sketch4.addConstraint(Sketcher.Constraint("Symmetric", 7, 3, 20, 3, -1))
sketch4.addConstraint(Sketcher.Constraint("Symmetric", 6, 3, 21, 3, -1))
sketch4.addConstraint(Sketcher.Constraint("Symmetric", 5, 3, 22, 3, -1))
sketch4.addConstraint(Sketcher.Constraint("Symmetric", 4, 3, 23, 3, -1))
sketch4.addConstraint(Sketcher.Constraint("Symmetric", 3, 3, 24, 3, -1))
sketch4.addConstraint(Sketcher.Constraint("Symmetric", 2, 3, 25, 3, -1))
sketch4.addConstraint(Sketcher.Constraint("Symmetric", 1, 3, 26, 3, -1))
sketch4.addConstraint(Sketcher.Constraint("Symmetric", 0, 3, 27, 3, -1))
sketch4.addConstraint(Sketcher.Constraint("Horizontal", 0, 3, 1, 3))
sketch4.addConstraint(Sketcher.Constraint("Horizontal", 1, 3, 2, 3))
sketch4.addConstraint(Sketcher.Constraint("Horizontal", 2, 3, 3, 3))
sketch4.addConstraint(Sketcher.Constraint("Horizontal", 3, 3, 4, 3))
sketch4.addConstraint(Sketcher.Constraint("Horizontal", 4, 3, 5, 3))
sketch4.addConstraint(Sketcher.Constraint("Horizontal", 5, 3, 6, 3))
sketch4.addConstraint(Sketcher.Constraint("Horizontal", 7, 3, 8, 3))
sketch4.addConstraint(Sketcher.Constraint("Horizontal", 8, 3, 9, 3))
sketch4.addConstraint(Sketcher.Constraint("Horizontal", 9, 3, 10, 3))
sketch4.addConstraint(Sketcher.Constraint("Horizontal", 10, 3, 11, 3))
sketch4.addConstraint(Sketcher.Constraint("Horizontal", 11, 3, 12, 3))
sketch4.addConstraint(Sketcher.Constraint("Horizontal", 12, 3, 13, 3))
sketch4.addConstraint(Sketcher.Constraint("Vertical", 0, 3, 7, 3))
sketch4.addConstraint(Sketcher.Constraint("Vertical", 1, 3, 8, 3))
sketch4.addConstraint(Sketcher.Constraint("Vertical", 2, 3, 9, 3))
sketch4.addConstraint(Sketcher.Constraint("Vertical", 3, 3, 10, 3))
sketch4.addConstraint(Sketcher.Constraint("Vertical", 4, 3, 11, 3))
sketch4.addConstraint(Sketcher.Constraint("Vertical", 5, 3, 12, 3))
sketch4.addConstraint(Sketcher.Constraint("Vertical", 6, 3, 13, 3))
sketch4.addConstraint(Sketcher.Constraint("Diameter", 0, Q("4 mm")))
sketch4.addConstraint(Sketcher.Constraint("DistanceX", 0, 3, 1, 3, Q("12.7 mm")))
sketch4.addConstraint(Sketcher.Constraint("DistanceX", 1, 3, 2, 3, Q("12.7 mm")))
sketch4.addConstraint(Sketcher.Constraint("DistanceX", 2, 3, 3, 3, Q("12.7 mm")))
sketch4.addConstraint(Sketcher.Constraint("DistanceX", 4, 3, 0, 3, Q("12.7 mm")))
sketch4.addConstraint(Sketcher.Constraint("DistanceX", 5, 3, 4, 3, Q("12.7 mm")))
sketch4.addConstraint(Sketcher.Constraint("DistanceX", 6, 3, 5, 3, Q("12.7 mm")))
sketch4.addConstraint(Sketcher.Constraint("DistanceY", 7, 3, 0, 3, Q("12.7 mm")))
sketch4.addConstraint(Sketcher.Constraint("DistanceY", 0, 3, -1, 1, Q("125.08 mm")))
sketch4.addConstraint(Sketcher.Constraint("DistanceX", -1, 1, 0, 3, Q("24.415 mm")))
pocket3 = body.newObject("PartDesign::Pocket", "Pocket002")
pocket3.Profile = sketch4
pocket3.Type = "ThroughAll"

doc.recompute()
